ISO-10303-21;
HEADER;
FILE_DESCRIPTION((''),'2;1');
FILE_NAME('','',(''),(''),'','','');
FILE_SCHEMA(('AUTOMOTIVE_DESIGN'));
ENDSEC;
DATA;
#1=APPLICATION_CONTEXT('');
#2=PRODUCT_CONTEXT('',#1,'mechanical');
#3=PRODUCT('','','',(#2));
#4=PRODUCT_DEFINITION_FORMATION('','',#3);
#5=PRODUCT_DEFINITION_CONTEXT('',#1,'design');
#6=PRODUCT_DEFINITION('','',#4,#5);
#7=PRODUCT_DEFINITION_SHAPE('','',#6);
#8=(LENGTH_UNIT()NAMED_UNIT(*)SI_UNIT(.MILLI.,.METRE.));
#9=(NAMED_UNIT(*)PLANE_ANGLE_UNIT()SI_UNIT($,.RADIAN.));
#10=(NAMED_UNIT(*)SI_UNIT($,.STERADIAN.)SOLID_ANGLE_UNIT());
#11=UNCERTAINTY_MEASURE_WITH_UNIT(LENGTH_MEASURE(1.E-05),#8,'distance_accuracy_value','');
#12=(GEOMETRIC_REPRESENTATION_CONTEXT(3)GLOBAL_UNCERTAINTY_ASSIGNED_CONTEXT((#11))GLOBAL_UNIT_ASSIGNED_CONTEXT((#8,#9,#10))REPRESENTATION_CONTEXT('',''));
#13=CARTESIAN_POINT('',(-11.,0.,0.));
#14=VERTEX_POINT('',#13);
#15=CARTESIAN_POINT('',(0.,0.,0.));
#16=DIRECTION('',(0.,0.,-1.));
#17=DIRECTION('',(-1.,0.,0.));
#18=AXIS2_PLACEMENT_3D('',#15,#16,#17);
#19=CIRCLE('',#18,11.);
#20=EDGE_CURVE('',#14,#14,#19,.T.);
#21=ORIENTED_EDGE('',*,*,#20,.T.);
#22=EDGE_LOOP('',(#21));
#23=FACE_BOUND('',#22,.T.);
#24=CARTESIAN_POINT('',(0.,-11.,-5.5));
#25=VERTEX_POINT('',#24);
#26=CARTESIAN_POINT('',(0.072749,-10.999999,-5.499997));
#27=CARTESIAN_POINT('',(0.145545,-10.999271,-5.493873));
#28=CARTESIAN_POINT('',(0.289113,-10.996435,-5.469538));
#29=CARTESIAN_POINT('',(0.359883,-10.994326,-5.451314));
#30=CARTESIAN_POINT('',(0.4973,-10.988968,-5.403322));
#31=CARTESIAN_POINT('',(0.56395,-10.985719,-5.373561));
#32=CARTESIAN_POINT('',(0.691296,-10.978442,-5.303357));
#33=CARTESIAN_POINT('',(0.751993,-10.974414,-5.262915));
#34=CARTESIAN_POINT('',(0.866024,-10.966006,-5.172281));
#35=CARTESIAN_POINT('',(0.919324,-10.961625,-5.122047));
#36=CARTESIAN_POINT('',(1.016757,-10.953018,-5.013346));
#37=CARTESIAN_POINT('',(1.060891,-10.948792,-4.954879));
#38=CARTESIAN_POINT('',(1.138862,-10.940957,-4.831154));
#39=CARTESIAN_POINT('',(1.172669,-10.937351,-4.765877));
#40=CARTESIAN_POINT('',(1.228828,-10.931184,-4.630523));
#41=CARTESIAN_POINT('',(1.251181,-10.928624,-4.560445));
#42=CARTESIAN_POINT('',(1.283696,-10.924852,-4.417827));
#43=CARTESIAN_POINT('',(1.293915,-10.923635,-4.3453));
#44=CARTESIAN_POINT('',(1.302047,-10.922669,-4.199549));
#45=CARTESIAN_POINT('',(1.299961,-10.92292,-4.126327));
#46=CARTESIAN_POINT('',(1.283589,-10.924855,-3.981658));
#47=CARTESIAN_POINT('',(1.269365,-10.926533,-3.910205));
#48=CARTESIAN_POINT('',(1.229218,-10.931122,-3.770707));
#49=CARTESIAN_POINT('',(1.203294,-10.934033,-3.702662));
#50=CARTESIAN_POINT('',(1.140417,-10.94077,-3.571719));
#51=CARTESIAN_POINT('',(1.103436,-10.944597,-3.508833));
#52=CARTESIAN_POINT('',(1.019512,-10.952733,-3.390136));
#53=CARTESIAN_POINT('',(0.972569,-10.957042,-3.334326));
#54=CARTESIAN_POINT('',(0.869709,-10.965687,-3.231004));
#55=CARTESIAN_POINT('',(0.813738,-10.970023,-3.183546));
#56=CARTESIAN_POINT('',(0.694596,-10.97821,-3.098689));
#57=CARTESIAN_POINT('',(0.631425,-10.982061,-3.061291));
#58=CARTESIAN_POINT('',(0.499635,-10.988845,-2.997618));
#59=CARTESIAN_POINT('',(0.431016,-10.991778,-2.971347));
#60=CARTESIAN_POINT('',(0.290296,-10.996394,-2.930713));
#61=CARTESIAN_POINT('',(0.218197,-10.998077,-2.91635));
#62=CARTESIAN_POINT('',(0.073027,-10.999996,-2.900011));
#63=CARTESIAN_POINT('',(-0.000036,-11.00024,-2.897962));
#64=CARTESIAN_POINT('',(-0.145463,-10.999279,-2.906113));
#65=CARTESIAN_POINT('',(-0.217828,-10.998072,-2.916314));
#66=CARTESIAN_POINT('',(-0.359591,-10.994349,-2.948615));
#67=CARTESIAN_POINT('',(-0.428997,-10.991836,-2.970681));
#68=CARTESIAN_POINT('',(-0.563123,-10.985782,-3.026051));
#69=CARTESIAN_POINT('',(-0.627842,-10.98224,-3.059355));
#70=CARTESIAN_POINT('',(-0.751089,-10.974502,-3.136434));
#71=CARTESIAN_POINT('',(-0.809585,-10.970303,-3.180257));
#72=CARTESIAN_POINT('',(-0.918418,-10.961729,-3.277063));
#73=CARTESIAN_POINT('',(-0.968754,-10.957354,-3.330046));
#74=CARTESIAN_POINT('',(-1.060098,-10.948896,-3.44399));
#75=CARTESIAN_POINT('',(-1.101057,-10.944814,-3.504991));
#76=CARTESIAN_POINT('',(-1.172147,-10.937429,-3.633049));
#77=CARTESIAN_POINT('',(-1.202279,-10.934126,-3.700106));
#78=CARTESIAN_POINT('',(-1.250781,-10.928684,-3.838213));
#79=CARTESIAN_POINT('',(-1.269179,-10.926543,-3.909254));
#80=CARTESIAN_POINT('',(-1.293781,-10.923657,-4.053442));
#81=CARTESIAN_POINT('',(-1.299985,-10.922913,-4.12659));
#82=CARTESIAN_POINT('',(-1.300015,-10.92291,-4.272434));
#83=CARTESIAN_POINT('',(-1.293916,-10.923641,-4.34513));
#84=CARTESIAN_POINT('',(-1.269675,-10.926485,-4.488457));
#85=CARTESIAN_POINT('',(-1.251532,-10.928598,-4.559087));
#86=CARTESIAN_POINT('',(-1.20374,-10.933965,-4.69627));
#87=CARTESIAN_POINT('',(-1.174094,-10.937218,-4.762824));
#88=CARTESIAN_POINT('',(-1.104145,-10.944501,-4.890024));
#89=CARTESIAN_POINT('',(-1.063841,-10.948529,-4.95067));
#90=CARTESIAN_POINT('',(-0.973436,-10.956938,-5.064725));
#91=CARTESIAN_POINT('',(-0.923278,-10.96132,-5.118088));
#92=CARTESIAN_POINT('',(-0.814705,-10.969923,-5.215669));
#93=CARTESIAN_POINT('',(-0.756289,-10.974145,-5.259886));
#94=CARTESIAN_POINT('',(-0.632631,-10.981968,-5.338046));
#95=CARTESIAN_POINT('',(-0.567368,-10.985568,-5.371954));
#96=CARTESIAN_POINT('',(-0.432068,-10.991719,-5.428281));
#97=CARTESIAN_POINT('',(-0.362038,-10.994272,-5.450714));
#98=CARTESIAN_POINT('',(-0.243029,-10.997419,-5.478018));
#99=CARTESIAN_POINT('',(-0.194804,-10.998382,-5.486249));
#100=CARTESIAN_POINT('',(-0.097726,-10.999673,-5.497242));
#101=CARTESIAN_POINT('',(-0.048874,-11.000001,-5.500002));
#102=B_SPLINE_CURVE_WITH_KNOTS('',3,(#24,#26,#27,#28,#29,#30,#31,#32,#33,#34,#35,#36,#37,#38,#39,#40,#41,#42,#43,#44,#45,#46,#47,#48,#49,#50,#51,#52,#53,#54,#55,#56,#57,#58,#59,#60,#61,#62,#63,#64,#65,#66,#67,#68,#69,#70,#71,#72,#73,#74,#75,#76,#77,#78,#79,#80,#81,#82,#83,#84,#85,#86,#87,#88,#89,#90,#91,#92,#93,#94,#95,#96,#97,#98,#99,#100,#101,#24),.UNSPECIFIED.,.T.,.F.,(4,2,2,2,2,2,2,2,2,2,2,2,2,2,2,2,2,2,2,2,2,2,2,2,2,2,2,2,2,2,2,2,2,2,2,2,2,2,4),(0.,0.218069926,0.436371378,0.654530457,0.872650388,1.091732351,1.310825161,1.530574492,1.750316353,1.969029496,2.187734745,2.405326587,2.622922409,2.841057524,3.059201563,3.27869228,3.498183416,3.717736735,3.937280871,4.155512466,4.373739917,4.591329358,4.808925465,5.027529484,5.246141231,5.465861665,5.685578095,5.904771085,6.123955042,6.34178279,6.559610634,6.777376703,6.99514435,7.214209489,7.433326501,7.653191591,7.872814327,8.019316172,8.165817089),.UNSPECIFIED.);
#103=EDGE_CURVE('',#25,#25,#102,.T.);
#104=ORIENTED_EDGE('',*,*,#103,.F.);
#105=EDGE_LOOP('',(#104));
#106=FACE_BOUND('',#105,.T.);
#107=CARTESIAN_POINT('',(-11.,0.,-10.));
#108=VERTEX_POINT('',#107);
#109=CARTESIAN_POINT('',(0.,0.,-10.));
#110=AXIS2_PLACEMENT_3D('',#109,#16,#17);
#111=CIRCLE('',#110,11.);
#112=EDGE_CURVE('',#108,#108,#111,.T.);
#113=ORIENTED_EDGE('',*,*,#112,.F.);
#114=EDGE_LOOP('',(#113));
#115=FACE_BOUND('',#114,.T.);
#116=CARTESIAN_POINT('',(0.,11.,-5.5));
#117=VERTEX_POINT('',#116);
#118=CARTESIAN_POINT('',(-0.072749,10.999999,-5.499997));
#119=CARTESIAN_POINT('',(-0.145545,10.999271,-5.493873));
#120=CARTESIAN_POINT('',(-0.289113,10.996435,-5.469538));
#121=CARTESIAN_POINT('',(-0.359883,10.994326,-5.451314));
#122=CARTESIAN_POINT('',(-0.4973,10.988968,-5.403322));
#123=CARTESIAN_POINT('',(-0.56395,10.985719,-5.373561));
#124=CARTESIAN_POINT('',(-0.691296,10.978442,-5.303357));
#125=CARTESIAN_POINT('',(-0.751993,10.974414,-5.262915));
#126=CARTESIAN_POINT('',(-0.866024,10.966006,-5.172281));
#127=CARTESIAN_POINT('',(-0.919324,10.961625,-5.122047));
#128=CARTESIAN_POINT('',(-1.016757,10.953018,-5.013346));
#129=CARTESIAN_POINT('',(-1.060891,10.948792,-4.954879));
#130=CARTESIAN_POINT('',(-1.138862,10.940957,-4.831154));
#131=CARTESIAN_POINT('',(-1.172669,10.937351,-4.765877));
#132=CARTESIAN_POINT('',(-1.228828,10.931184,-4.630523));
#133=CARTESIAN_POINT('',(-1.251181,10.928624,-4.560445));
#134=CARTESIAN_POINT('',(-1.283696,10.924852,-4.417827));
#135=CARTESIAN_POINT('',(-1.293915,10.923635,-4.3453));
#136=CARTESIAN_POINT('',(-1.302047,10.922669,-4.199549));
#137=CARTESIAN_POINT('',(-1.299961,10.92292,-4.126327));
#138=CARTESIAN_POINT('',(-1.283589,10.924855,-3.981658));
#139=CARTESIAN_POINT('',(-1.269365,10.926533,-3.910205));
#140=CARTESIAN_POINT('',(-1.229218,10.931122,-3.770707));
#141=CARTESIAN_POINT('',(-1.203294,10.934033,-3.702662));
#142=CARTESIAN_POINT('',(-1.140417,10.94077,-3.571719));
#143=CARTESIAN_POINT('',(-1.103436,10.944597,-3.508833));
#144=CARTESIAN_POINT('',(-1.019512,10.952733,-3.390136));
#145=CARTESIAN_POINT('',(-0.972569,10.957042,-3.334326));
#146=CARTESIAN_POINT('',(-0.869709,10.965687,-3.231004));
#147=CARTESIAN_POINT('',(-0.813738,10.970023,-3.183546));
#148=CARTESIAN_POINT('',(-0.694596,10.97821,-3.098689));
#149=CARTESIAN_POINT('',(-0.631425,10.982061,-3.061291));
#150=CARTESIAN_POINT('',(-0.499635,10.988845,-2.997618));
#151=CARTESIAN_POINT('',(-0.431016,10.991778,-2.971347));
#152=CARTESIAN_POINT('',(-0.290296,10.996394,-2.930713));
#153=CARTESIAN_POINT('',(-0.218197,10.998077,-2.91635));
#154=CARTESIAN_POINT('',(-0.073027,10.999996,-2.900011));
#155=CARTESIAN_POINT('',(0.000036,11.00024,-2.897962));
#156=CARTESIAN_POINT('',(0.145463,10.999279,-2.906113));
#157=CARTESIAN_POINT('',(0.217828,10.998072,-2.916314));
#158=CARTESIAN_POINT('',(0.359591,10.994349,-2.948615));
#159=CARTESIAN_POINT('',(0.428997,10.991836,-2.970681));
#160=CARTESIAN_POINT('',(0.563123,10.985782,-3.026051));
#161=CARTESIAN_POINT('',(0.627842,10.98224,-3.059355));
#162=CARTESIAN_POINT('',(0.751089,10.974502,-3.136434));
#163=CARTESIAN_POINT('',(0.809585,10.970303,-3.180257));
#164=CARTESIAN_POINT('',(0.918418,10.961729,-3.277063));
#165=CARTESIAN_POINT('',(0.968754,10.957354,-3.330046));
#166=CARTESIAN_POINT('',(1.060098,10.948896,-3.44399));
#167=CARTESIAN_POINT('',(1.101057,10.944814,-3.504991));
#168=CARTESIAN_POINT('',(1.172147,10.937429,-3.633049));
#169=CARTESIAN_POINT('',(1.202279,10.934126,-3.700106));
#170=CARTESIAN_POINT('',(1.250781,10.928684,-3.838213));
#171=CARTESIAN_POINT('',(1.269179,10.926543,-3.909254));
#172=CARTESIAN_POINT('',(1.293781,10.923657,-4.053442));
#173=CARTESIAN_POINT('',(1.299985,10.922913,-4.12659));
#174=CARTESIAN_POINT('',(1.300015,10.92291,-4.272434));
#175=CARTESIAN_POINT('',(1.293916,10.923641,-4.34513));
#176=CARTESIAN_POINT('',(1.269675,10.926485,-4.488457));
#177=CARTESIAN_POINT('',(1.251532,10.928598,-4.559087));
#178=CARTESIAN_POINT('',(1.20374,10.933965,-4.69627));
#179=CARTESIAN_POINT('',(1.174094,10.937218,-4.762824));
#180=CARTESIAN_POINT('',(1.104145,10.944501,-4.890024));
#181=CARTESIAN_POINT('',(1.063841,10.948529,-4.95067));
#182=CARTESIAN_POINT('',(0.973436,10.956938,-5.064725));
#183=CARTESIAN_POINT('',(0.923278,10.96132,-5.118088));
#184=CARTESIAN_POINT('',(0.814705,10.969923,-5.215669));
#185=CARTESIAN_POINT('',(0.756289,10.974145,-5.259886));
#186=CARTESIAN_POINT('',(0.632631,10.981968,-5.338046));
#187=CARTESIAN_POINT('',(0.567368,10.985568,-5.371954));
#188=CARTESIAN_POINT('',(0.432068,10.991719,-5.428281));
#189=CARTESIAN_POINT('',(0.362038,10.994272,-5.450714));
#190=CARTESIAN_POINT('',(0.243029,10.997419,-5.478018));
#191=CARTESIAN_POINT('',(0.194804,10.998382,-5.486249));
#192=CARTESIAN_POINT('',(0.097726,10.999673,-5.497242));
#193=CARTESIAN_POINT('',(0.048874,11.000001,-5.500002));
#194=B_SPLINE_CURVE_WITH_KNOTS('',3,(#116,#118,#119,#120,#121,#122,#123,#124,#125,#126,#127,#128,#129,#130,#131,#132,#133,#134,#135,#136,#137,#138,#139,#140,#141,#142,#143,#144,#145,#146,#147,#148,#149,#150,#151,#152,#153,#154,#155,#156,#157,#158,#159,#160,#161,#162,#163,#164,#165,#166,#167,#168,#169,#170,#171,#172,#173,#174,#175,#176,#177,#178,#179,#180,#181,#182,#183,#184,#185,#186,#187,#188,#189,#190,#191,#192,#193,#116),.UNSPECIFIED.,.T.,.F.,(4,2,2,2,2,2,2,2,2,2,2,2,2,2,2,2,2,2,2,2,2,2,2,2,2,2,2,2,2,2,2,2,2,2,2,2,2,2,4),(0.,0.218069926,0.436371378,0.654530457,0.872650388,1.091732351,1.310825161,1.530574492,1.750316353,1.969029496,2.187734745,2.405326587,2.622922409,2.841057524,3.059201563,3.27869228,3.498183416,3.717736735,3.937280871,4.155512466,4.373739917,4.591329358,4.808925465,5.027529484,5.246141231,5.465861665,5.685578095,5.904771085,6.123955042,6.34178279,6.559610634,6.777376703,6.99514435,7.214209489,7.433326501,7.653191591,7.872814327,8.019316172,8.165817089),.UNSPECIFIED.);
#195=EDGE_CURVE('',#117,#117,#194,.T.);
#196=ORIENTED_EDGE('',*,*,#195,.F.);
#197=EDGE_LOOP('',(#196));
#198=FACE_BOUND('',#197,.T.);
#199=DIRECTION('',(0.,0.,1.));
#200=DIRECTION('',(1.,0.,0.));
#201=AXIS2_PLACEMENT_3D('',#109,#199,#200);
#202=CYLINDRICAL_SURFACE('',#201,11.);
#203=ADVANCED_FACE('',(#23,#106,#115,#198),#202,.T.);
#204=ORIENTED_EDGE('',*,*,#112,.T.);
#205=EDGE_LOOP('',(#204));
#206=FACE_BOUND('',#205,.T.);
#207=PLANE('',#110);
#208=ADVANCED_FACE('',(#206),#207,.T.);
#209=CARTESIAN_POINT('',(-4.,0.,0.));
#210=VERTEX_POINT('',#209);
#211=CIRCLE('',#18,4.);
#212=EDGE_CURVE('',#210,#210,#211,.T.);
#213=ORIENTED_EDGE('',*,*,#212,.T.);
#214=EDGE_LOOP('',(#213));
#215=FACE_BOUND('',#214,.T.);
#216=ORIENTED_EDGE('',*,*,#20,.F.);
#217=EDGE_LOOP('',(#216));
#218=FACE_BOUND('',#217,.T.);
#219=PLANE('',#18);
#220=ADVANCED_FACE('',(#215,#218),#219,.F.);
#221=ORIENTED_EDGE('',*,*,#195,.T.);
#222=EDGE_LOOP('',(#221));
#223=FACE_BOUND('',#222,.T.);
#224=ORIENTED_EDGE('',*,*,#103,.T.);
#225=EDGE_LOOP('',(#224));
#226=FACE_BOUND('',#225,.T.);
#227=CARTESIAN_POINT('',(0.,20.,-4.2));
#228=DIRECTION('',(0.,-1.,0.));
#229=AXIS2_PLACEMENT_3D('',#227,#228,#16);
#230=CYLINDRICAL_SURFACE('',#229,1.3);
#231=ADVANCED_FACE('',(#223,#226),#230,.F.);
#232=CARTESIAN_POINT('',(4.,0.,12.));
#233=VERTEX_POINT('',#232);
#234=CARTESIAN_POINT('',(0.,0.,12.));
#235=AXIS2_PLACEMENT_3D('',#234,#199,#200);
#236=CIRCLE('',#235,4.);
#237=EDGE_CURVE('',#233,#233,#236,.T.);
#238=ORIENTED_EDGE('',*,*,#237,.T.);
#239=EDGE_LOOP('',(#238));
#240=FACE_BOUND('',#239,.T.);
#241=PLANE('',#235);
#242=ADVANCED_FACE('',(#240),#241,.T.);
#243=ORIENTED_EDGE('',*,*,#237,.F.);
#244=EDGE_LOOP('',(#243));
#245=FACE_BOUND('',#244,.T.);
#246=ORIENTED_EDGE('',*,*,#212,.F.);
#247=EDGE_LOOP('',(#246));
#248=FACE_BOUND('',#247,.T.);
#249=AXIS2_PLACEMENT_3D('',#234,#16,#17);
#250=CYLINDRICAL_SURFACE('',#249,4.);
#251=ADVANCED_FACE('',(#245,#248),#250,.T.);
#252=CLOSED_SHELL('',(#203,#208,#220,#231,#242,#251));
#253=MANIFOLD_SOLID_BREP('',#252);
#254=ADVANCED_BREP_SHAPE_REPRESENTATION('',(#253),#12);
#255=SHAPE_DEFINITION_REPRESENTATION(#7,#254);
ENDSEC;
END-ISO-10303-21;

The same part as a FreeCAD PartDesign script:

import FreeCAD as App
import Part
import Sketcher
from FreeCAD import Vector
Q = App.Units.Quantity

doc = App.newDocument("Part")
body = doc.addObject("PartDesign::Body", "Body")

# Sketch on XY plane
sketch1 = body.newObject("Sketcher::SketchObject", "Sketch")
sketch1.AttachmentSupport = (doc.getObject("XY_Plane"), [""])
sketch1.MapMode = "FlatFace"
sketch1.addGeometry(Part.Circle(Vector(0, 0, 0), Vector(0, 0, 1), 4), False)
sketch1.addConstraint(Sketcher.Constraint("Coincident", 0, 3, -1, 1))
sketch1.addConstraint(Sketcher.Constraint("Diameter", 0, Q("8 mm")))
pad1 = body.newObject("PartDesign::Pad", "Pad")
pad1.Profile = sketch1
pad1.Length = 12

# Sketch on XY plane
sketch2 = body.newObject("Sketcher::SketchObject", "Sketch001")
sketch2.AttachmentSupport = (doc.getObject("XY_Plane"), [""])
sketch2.MapMode = "FlatFace"
sketch2.addGeometry(Part.Circle(Vector(0, 0, 0), Vector(0, 0, 1), 11), False)
sketch2.addConstraint(Sketcher.Constraint("Coincident", 0, 3, -1, 1))
sketch2.addConstraint(Sketcher.Constraint("Diameter", 0, Q("22 mm")))
pad2 = body.newObject("PartDesign::Pad", "Pad001")
pad2.Profile = sketch2
pad2.Length = 10
pad2.Reversed = True

# Sketch on XZ plane
sketch3 = body.newObject("Sketcher::SketchObject", "Sketch002")
sketch3.AttachmentSupport = (doc.getObject("XZ_Plane"), [""])
sketch3.MapMode = "FlatFace"
sketch3.addGeometry(Part.Circle(Vector(0, -4.2, 0), Vector(0, 0, 1), 1.3), False)
sketch3.addConstraint(Sketcher.Constraint("PointOnObject", 0, 3, -2))
sketch3.addConstraint(Sketcher.Constraint("Diameter", 0, Q("2.6 mm")))
sketch3.addConstraint(Sketcher.Constraint("DistanceY", 0, 3, -1, 1, Q("4.2 mm")))
pocket1 = body.newObject("PartDesign::Pocket", "Pocket")
pocket1.Profile = sketch3
pocket1.Type = "ThroughAll"
pocket1.Midplane = True

doc.recompute()
